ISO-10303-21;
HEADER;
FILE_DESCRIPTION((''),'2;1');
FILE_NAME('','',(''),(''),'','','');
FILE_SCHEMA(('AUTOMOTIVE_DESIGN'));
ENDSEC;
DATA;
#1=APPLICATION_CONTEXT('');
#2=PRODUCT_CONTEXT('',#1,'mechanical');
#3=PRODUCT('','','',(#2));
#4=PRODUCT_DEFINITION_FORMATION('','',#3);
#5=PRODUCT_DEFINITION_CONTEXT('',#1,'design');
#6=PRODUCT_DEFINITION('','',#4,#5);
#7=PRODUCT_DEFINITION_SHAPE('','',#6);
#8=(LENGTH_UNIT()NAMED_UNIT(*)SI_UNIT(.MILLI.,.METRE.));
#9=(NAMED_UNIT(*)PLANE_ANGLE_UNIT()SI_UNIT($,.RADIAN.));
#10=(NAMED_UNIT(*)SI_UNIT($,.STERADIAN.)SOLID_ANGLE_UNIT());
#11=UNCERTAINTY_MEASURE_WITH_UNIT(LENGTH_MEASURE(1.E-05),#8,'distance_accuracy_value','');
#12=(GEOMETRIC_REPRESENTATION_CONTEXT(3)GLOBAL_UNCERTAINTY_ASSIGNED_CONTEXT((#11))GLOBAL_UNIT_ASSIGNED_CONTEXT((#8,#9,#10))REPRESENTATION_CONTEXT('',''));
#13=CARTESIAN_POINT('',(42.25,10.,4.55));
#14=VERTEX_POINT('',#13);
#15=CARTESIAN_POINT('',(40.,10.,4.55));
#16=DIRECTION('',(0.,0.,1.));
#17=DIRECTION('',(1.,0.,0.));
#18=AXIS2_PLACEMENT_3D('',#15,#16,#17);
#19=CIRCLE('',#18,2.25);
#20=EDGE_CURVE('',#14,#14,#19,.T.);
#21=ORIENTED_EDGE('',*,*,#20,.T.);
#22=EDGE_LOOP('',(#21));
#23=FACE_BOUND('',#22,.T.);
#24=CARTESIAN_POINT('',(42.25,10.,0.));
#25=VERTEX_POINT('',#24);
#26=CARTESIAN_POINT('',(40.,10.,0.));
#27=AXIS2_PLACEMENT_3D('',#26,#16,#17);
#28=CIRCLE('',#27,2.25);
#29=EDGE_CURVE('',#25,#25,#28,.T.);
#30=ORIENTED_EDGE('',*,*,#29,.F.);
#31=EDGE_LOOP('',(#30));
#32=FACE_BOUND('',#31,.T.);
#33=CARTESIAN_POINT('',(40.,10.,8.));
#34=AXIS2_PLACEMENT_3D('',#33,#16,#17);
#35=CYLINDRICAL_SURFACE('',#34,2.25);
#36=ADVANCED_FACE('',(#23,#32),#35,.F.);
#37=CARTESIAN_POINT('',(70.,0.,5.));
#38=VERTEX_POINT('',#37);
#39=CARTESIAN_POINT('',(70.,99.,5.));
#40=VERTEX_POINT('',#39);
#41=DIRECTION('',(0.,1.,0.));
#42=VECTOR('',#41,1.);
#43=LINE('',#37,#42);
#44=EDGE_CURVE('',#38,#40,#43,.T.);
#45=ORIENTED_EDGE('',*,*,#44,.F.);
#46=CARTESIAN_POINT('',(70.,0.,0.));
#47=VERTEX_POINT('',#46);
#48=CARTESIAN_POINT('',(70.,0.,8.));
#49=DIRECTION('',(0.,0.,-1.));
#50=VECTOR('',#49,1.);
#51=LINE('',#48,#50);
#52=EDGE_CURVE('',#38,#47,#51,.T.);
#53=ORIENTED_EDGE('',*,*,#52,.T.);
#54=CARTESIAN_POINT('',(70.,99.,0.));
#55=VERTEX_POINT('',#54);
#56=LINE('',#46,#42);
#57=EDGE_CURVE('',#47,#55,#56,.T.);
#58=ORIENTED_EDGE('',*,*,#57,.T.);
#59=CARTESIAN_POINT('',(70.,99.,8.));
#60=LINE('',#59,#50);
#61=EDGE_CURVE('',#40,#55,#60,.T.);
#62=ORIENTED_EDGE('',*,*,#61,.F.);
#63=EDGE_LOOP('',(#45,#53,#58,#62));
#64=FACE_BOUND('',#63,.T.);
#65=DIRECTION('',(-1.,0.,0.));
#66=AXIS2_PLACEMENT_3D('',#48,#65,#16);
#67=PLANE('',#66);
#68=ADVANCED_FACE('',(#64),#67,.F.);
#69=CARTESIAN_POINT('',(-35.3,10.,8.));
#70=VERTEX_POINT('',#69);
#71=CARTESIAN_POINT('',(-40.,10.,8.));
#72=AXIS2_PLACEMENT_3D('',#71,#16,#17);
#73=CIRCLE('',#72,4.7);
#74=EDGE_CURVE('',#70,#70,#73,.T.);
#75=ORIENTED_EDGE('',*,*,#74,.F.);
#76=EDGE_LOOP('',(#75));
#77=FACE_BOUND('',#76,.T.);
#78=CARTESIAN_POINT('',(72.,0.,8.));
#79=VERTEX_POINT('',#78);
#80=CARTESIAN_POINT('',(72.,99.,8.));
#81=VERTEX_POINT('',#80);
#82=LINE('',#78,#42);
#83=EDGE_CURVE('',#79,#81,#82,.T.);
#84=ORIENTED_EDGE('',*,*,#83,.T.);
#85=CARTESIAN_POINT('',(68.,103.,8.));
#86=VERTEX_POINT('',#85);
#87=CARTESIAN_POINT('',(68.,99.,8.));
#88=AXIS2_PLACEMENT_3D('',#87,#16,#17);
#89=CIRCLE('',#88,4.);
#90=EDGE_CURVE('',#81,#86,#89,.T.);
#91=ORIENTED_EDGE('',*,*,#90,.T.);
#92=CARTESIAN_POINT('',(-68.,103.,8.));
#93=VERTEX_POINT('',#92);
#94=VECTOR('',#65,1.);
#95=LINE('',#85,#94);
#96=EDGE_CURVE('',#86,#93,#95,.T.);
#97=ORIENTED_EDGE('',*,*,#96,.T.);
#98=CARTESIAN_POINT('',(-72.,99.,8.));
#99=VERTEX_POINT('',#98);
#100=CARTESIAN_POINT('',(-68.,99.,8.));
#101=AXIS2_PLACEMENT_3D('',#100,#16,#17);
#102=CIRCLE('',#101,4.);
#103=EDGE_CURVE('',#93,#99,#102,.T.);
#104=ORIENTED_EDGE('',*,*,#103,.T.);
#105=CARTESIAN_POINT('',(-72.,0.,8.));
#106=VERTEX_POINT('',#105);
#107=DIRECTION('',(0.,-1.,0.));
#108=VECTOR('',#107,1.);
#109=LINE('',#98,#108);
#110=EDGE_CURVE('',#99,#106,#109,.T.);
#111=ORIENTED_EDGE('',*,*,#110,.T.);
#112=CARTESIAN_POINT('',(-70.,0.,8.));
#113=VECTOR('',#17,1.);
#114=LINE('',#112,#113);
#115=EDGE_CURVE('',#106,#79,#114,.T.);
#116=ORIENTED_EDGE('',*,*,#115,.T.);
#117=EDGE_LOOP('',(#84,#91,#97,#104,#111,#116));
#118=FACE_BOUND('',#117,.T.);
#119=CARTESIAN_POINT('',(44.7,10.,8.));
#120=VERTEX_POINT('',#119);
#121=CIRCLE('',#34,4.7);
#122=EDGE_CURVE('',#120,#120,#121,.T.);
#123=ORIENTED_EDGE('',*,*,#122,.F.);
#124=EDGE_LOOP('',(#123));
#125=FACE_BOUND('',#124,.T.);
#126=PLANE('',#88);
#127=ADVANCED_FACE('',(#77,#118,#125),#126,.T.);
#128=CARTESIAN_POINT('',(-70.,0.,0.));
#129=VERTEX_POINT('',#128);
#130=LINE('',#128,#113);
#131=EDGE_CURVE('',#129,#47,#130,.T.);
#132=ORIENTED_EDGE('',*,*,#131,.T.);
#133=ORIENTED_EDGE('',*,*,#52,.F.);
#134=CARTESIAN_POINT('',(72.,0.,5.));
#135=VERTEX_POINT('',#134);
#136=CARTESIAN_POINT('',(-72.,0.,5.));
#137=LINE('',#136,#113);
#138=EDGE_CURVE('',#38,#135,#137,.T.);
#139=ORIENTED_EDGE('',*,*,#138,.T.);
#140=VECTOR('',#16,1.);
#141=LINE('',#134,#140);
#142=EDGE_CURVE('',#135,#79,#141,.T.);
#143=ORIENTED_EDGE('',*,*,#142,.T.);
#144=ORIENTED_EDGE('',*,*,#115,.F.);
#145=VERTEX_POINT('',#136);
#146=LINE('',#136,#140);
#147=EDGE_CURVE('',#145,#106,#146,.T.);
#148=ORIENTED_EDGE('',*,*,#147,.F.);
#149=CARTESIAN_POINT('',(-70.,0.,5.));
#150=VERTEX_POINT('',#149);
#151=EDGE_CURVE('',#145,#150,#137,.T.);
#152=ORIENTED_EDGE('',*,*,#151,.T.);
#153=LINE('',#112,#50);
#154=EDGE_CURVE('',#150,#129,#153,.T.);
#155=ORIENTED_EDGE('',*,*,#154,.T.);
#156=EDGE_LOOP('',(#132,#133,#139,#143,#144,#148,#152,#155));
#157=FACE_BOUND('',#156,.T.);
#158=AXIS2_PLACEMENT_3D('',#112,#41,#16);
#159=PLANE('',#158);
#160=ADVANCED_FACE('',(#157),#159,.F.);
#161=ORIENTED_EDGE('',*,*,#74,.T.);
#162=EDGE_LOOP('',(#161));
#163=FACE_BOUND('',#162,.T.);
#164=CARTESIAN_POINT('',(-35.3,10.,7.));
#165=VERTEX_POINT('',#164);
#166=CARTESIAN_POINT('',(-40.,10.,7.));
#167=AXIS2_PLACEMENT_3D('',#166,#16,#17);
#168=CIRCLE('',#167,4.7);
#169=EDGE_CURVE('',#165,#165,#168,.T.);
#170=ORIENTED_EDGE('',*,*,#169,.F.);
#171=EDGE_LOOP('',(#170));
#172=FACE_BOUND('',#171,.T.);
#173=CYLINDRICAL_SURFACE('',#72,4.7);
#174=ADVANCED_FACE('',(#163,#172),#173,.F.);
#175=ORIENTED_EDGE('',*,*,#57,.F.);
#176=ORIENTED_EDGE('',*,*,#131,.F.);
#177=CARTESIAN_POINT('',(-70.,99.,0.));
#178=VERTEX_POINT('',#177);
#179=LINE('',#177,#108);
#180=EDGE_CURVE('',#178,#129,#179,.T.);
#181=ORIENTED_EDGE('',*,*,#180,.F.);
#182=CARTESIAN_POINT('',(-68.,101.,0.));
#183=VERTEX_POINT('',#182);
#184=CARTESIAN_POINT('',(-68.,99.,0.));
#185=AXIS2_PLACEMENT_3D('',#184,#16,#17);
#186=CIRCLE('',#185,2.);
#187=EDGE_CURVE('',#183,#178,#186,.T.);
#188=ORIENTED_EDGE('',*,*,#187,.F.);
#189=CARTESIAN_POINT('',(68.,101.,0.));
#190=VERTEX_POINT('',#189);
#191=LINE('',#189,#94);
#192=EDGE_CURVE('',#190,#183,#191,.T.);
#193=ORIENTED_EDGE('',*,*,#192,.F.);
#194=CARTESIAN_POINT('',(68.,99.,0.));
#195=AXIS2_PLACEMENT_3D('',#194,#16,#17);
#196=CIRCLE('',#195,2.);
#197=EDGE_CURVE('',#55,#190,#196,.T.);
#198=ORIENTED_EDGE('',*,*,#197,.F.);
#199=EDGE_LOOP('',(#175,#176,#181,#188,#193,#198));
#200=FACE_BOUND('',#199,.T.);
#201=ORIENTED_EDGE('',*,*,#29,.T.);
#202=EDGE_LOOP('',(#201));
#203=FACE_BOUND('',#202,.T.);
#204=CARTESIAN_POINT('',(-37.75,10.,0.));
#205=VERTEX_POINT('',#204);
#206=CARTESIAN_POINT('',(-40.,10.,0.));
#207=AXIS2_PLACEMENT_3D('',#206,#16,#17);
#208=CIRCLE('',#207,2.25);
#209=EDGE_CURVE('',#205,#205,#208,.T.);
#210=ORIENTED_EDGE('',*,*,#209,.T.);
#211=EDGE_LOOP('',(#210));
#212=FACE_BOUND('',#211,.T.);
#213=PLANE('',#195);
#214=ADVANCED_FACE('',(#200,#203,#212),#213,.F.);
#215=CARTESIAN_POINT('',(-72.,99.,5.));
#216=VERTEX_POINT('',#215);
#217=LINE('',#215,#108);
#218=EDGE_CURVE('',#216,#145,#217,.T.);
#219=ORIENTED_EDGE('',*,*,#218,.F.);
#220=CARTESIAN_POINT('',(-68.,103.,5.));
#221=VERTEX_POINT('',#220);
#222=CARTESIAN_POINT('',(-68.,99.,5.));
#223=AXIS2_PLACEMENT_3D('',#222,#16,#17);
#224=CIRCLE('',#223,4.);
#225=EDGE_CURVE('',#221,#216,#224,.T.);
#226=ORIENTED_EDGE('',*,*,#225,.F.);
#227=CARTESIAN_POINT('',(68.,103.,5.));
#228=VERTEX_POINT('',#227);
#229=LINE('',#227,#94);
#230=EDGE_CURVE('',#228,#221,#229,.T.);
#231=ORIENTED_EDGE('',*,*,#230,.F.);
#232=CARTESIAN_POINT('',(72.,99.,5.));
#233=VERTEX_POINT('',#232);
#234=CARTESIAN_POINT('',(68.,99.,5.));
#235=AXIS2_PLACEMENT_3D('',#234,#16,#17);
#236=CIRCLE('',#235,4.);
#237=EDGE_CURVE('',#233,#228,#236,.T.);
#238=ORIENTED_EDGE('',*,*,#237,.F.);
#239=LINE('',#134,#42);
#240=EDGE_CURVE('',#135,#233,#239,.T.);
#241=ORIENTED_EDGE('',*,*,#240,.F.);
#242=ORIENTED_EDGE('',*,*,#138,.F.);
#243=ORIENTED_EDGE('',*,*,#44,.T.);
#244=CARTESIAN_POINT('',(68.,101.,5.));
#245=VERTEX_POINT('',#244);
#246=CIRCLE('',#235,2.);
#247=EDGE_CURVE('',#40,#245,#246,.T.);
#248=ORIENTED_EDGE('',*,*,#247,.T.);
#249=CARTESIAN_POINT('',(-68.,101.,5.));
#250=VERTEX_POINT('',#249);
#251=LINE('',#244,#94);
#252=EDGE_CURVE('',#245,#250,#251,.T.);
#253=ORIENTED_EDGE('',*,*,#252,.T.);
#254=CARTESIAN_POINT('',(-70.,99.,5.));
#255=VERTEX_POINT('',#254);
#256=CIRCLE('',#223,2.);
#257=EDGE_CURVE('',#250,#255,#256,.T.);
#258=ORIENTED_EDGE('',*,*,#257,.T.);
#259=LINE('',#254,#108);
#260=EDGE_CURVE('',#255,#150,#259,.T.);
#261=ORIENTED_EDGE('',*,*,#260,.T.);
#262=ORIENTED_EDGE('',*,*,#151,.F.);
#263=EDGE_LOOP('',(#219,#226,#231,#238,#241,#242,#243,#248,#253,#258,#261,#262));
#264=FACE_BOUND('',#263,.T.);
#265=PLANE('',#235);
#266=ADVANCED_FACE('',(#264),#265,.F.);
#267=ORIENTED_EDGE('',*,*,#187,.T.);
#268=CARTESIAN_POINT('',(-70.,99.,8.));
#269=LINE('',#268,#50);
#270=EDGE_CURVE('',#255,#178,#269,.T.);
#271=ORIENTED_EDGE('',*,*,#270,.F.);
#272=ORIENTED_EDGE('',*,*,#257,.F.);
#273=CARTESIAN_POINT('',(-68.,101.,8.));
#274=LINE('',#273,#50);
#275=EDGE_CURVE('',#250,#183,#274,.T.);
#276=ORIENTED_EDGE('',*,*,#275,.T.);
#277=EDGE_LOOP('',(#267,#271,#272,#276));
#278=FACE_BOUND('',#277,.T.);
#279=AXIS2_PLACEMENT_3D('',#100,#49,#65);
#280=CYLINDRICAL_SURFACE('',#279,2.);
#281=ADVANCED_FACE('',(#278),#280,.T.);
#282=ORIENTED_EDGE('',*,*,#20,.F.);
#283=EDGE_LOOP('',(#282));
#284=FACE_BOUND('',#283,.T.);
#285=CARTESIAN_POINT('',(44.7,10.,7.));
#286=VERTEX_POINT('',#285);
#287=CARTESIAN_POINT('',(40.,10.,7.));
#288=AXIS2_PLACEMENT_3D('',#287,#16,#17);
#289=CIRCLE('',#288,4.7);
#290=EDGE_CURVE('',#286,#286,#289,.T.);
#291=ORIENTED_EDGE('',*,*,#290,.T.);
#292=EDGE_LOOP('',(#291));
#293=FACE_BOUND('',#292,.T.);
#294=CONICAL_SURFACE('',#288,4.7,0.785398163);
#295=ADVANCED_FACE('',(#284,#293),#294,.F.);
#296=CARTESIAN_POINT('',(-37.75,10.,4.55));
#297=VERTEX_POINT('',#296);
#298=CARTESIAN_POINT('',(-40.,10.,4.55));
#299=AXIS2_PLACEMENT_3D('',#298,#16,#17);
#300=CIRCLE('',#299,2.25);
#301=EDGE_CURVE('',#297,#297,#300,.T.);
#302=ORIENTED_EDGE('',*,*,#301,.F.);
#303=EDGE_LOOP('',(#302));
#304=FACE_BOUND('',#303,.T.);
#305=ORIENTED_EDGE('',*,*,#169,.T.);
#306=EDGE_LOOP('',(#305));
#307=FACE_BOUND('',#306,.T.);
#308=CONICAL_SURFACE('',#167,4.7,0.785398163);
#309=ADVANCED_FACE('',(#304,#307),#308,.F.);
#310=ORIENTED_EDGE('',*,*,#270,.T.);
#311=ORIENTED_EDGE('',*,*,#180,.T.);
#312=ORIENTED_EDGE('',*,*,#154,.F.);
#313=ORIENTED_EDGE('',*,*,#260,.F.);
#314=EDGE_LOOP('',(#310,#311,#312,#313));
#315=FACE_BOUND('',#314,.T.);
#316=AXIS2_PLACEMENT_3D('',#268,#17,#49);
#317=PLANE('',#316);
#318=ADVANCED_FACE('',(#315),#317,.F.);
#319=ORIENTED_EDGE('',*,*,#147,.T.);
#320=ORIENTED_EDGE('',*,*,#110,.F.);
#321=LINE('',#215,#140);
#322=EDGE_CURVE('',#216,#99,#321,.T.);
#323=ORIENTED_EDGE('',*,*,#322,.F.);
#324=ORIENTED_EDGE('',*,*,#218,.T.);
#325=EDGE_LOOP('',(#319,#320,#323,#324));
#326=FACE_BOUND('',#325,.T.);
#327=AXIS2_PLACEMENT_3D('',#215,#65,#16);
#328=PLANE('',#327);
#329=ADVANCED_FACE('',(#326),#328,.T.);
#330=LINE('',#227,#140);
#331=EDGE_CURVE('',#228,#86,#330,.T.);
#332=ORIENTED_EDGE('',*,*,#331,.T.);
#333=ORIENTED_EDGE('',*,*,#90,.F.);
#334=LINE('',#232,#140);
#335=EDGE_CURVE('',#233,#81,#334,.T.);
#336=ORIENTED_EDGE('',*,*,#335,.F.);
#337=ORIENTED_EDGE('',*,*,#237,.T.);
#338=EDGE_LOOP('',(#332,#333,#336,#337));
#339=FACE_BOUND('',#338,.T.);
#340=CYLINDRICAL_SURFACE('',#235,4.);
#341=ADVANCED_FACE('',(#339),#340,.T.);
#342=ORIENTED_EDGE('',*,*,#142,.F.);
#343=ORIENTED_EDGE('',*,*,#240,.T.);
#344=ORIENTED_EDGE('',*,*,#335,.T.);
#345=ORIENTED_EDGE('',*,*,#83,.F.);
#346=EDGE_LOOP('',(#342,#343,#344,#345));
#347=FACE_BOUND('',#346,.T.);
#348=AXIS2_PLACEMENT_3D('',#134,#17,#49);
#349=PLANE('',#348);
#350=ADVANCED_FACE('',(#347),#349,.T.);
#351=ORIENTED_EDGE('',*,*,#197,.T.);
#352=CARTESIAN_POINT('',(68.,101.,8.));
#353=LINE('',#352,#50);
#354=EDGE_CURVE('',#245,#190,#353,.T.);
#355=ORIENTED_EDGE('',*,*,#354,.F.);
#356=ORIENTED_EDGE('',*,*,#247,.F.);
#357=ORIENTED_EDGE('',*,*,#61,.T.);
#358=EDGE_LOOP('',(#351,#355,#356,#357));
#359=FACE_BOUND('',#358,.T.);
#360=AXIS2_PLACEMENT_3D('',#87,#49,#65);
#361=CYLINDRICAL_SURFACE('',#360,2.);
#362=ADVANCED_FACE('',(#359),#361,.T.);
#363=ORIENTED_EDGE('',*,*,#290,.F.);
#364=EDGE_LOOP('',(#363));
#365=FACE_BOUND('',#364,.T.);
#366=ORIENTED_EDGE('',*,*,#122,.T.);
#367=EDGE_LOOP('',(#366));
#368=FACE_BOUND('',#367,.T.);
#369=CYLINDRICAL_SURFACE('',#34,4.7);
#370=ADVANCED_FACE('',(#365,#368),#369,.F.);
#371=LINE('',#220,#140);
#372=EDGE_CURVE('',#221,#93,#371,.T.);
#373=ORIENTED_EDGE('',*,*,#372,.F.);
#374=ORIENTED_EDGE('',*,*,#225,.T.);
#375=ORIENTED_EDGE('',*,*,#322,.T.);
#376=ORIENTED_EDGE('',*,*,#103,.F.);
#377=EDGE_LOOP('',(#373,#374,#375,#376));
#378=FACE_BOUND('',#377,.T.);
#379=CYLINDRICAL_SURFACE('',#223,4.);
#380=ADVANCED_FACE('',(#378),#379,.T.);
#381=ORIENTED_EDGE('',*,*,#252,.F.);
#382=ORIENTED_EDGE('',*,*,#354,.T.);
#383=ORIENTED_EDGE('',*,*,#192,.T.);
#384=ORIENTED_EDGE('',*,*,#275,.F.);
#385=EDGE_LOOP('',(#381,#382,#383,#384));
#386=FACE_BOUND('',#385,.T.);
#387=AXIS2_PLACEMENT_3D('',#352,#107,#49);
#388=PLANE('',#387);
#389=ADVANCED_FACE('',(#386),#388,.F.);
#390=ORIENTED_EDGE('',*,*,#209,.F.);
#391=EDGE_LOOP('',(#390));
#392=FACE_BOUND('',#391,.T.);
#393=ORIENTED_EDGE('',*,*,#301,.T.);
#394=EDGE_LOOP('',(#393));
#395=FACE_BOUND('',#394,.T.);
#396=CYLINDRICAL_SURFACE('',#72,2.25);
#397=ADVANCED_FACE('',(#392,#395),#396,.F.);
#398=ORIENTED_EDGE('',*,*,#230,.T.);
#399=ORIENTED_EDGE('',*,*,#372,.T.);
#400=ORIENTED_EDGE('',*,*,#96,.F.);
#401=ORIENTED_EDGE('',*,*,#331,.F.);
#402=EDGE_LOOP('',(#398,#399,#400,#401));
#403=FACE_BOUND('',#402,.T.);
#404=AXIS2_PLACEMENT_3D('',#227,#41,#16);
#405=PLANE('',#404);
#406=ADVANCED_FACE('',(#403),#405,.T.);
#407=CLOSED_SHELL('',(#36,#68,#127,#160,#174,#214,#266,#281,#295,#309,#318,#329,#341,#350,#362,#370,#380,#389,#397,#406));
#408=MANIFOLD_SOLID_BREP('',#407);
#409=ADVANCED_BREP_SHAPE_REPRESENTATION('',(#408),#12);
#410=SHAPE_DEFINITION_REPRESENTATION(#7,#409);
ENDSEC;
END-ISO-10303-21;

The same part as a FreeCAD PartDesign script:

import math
import FreeCAD as App
import Part
import Sketcher

V = App.Vector
Q = App.Units.Quantity

doc = App.newDocument("Part")
body = doc.addObject("PartDesign::Body", "Body")

sketch1 = doc.addObject("Sketcher::SketchObject", "Sketch")
body.addObject(sketch1)
sketch1.AttachmentSupport = (doc.XY_Plane, [""])
sketch1.MapMode = "FlatFace"
sketch1.addGeometry([
    Part.LineSegment(V(70, 0, 0), V(70, 99, 0)),
    Part.ArcOfCircle(Part.Circle(V(68, 99, 0), V(0, 0, 1), 2), math.radians(0), math.radians(90)),
    Part.LineSegment(V(68, 101, 0), V(-68, 101, 0)),
    Part.ArcOfCircle(Part.Circle(V(-68, 99, 0), V(0, 0, 1), 2), math.radians(90), math.radians(180)),
    Part.LineSegment(V(-70, 99, 0), V(-70, 0, 0)),
    Part.LineSegment(V(-70, 0, 0), V(70, 0, 0)),
], False)
sketch1.addConstraint([
    Sketcher.Constraint("Tangent", 0, 2, 1, 1),
    Sketcher.Constraint("Tangent", 1, 2, 2, 1),
    Sketcher.Constraint("Tangent", 2, 2, 3, 1),
    Sketcher.Constraint("Tangent", 3, 2, 4, 1),
    Sketcher.Constraint("Coincident", 4, 2, 5, 1),
    Sketcher.Constraint("Coincident", 5, 2, 0, 1),
    Sketcher.Constraint("Vertical", 0),
    Sketcher.Constraint("Horizontal", 2),
    Sketcher.Constraint("Vertical", 4),
    Sketcher.Constraint("Horizontal", 5),
    Sketcher.Constraint("Equal", 1, 3),
    Sketcher.Constraint("Symmetric", 4, 2, 5, 2, -1, 1),
    Sketcher.Constraint("Radius", 1, Q("2 mm")),
    Sketcher.Constraint("DistanceX", 2, 2, 2, 1, Q("136 mm")),
    Sketcher.Constraint("DistanceY", 0, 1, 0, 2, Q("99 mm")),
])
pad1 = doc.addObject("PartDesign::Pad", "Pad")
body.addObject(pad1)
pad1.Profile = sketch1
pad1.Length = 8

sketch2 = doc.addObject("Sketcher::SketchObject", "Sketch001")
body.addObject(sketch2)
sketch2.AttachmentSupport = (doc.XY_Plane, [""])
sketch2.MapMode = "FlatFace"
sketch2.AttachmentOffset = App.Placement(V(0, 0, 8), App.Rotation())
sketch2.addGeometry([
    Part.LineSegment(V(72, 0, 0), V(72, 99, 0)),
    Part.ArcOfCircle(Part.Circle(V(68, 99, 0), V(0, 0, 1), 4), math.radians(0), math.radians(90)),
    Part.LineSegment(V(68, 103, 0), V(-68, 103, 0)),
    Part.ArcOfCircle(Part.Circle(V(-68, 99, 0), V(0, 0, 1), 4), math.radians(90), math.radians(180)),
    Part.LineSegment(V(-72, 99, 0), V(-72, 0, 0)),
    Part.LineSegment(V(-72, 0, 0), V(72, 0, 0)),
], False)
sketch2.addConstraint([
    Sketcher.Constraint("Tangent", 0, 2, 1, 1),
    Sketcher.Constraint("Tangent", 1, 2, 2, 1),
    Sketcher.Constraint("Tangent", 2, 2, 3, 1),
    Sketcher.Constraint("Tangent", 3, 2, 4, 1),
    Sketcher.Constraint("Coincident", 4, 2, 5, 1),
    Sketcher.Constraint("Coincident", 5, 2, 0, 1),
    Sketcher.Constraint("Vertical", 0),
    Sketcher.Constraint("Horizontal", 2),
    Sketcher.Constraint("Vertical", 4),
    Sketcher.Constraint("Horizontal", 5),
    Sketcher.Constraint("Equal", 1, 3),
    Sketcher.Constraint("Symmetric", 4, 2, 5, 2, -1, 1),
    Sketcher.Constraint("Radius", 1, Q("4 mm")),
    Sketcher.Constraint("DistanceX", 2, 2, 2, 1, Q("136 mm")),
    Sketcher.Constraint("DistanceY", 0, 1, 0, 2, Q("99 mm")),
])
pad2 = doc.addObject("PartDesign::Pad", "Pad001")
body.addObject(pad2)
pad2.Profile = sketch2
pad2.Length = 3
pad2.Reversed = True

sketch3 = doc.addObject("Sketcher::SketchObject", "Sketch002")
body.addObject(sketch3)
sketch3.AttachmentSupport = (doc.YZ_Plane, [""])
sketch3.MapMode = "FlatFace"
sketch3.AttachmentOffset = App.Placement(V(0, 0, 40), App.Rotation())
sketch3.addGeometry([
    Part.LineSegment(V(10, 0, 0), V(10, 8, 0)),
    Part.LineSegment(V(10, 8, 0), V(5.3, 8, 0)),
    Part.LineSegment(V(5.3, 8, 0), V(5.3, 7, 0)),
    Part.LineSegment(V(5.3, 7, 0), V(7.8, 4.5, 0)),
    Part.LineSegment(V(7.8, 4.5, 0), V(7.8, 0, 0)),
    Part.LineSegment(V(7.8, 0, 0), V(10, 0, 0)),
], False)
sketch3.addGeometry(Part.LineSegment(V(10, 8, 0), V(10, 0, 0)), True)
sketch3.addConstraint([
    Sketcher.Constraint("Coincident", 0, 2, 1, 1),
    Sketcher.Constraint("Coincident", 1, 2, 2, 1),
    Sketcher.Constraint("Coincident", 2, 2, 3, 1),
    Sketcher.Constraint("Coincident", 3, 2, 4, 1),
    Sketcher.Constraint("Coincident", 4, 2, 5, 1),
    Sketcher.Constraint("Coincident", 5, 2, 0, 1),
    Sketcher.Constraint("Vertical", 0),
    Sketcher.Constraint("Horizontal", 1),
    Sketcher.Constraint("Vertical", 2),
    Sketcher.Constraint("Vertical", 4),
    Sketcher.Constraint("Horizontal", 5),
    Sketcher.Constraint("Vertical", 6),
    Sketcher.Constraint("Coincident", 6, 1, 0, 2),
    Sketcher.Constraint("PointOnObject", 4, 2, -1),
    Sketcher.Constraint("PointOnObject", 6, 2, -1),
    Sketcher.Constraint("DistanceY", 0, 1, 0, 2, Q("8 mm")),
    Sketcher.Constraint("DistanceY", 2, 2, 2, 1, Q("1 mm")),
    Sketcher.Constraint("Angle", 3, Q("-45 deg")),
    Sketcher.Constraint("DistanceX", 1, 2, 1, 1, Q("4.7 mm")),
    Sketcher.Constraint("DistanceX", -1, 1, 0, 2, Q("10 mm")),
    Sketcher.Constraint("DistanceX", 5, 1, 5, 2, Q("2.25 mm")),
])
groove = doc.addObject("PartDesign::Groove", "Groove")
body.addObject(groove)
groove.Profile = sketch3
groove.ReferenceAxis = (sketch3, ["Axis0"])
groove.Angle = 360
doc.recompute()

mirrored = doc.addObject("PartDesign::Mirrored", "Mirrored")
body.addObject(mirrored)
mirrored.Originals = [groove]
mirrored.MirrorPlane = (doc.YZ_Plane, [""])
body.Tip = mirrored

doc.recompute()
